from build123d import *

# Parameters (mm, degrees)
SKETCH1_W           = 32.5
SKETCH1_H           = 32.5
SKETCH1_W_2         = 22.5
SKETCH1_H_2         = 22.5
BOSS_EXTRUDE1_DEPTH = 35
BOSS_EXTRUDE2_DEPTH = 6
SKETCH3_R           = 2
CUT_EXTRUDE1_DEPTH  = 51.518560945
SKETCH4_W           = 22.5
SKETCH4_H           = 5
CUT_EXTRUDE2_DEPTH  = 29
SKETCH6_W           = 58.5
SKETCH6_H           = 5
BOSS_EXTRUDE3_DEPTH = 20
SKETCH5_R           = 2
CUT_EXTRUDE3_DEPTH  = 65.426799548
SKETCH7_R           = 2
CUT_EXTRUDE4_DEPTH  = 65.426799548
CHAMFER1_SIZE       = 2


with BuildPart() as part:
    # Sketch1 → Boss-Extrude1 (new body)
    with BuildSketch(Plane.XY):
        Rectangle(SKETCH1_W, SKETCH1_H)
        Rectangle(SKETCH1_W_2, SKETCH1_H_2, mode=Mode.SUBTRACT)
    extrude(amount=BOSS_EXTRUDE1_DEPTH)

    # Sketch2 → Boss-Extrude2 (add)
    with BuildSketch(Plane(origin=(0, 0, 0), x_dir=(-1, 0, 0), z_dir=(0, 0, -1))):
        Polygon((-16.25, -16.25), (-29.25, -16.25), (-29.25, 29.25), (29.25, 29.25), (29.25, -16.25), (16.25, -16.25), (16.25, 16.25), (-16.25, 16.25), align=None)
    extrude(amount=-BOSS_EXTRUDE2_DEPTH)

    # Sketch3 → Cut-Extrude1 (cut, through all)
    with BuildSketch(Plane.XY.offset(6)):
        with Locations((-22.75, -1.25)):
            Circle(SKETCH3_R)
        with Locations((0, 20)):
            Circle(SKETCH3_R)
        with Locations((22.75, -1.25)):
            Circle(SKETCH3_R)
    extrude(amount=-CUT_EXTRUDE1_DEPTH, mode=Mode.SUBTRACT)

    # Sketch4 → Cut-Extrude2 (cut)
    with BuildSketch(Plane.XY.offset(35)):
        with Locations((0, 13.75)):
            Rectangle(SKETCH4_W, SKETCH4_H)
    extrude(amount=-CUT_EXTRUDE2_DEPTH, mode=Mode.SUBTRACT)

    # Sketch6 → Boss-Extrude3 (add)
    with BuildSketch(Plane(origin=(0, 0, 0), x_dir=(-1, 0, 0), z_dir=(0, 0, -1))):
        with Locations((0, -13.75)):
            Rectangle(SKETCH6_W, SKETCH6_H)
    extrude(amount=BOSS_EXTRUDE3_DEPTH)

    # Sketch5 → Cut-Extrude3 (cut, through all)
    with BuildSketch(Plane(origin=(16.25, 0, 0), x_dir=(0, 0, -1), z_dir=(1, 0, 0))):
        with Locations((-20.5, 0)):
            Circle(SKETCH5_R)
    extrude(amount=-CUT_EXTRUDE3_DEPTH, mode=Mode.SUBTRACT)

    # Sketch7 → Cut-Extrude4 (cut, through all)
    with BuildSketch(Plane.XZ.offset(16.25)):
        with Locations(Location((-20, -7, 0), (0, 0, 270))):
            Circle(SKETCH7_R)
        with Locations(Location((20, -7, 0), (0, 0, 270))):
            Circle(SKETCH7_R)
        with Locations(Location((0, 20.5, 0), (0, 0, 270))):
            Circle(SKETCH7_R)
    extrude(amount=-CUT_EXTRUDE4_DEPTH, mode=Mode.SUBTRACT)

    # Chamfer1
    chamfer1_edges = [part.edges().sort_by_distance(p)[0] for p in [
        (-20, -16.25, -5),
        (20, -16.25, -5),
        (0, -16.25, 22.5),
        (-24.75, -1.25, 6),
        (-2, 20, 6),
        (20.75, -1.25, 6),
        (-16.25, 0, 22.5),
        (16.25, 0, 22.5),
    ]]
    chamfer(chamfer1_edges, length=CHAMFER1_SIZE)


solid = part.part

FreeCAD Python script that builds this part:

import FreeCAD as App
import Part
import Sketcher
from FreeCAD import Vector


def edges_at(feature, points):
    """Names of the edges that pass closest to the given points."""
    edges = feature.Shape.Edges
    near = lambda p: min(range(len(edges)), key=lambda i: edges[i].distToShape(Part.Vertex(*p))[0])
    return sorted({f"Edge{near(p) + 1}" for p in points})

doc = App.newDocument("Part")
body = doc.addObject("PartDesign::Body", "Body")

# Sketch on XY plane
sketch1 = body.newObject("Sketcher::SketchObject", "Sketch")
sketch1.AttachmentSupport = (doc.getObject("XY_Plane"), [""])
sketch1.MapMode = "FlatFace"
sketch1.addGeometry([
    Part.LineSegment(Vector(-16, 16, 0), Vector(-16, -16, 0)),  # 0
    Part.LineSegment(Vector(-16, -16, 0), Vector(16, -16, 0)),  # 1
    Part.LineSegment(Vector(16, -16, 0), Vector(16, 16, 0)),  # 2
    Part.LineSegment(Vector(16, 16, 0), Vector(-16, 16, 0)),  # 3
    Part.LineSegment(Vector(11, -11, 0), Vector(-11, -11, 0)),  # 4
    Part.LineSegment(Vector(-11, -11, 0), Vector(-11, 11, 0)),  # 5
    Part.LineSegment(Vector(-11, 11, 0), Vector(11, 11, 0)),  # 6
    Part.LineSegment(Vector(11, 11, 0), Vector(11, -11, 0)),  # 7
], False)
sketch1.addConstraint([
    Sketcher.Constraint("Coincident", 0, 2, 1, 1),
    Sketcher.Constraint("Coincident", 1, 2, 2, 1),
    Sketcher.Constraint("Coincident", 2, 2, 3, 1),
    Sketcher.Constraint("Coincident", 3, 2, 0, 1),
    Sketcher.Constraint("Coincident", 4, 2, 5, 1),
    Sketcher.Constraint("Coincident", 5, 2, 6, 1),
    Sketcher.Constraint("Coincident", 6, 2, 7, 1),
    Sketcher.Constraint("Coincident", 7, 2, 4, 1),
    Sketcher.Constraint("Vertical", 0),
    Sketcher.Constraint("Horizontal", 1),
    Sketcher.Constraint("Vertical", 2),
    Sketcher.Constraint("Horizontal", 3),
    Sketcher.Constraint("Horizontal", 4),
    Sketcher.Constraint("Vertical", 5),
    Sketcher.Constraint("Horizontal", 6),
    Sketcher.Constraint("Vertical", 7),
    Sketcher.Constraint("Symmetric", 0, 2, 2, 2, -1, 1),
    Sketcher.Constraint("Symmetric", 4, 2, 6, 2, -1, 1),
    Sketcher.Constraint("Equal", 3, 0),
    Sketcher.Constraint("Equal", 6, 5),
    Sketcher.Constraint("DistanceX", 1, 1, 1, 2, 32.5),
    Sketcher.Constraint("DistanceX", 4, 2, 4, 1, 22.5),
])
pad1 = body.newObject("PartDesign::Pad", "Pad")
pad1.Profile = sketch1
pad1.Length = 35

# Sketch on XY plane
sketch2 = body.newObject("Sketcher::SketchObject", "Sketch001")
sketch2.AttachmentSupport = (doc.getObject("XY_Plane"), [""])
sketch2.MapMode = "FlatFace"
sketch2.addGeometry([
    Part.LineSegment(Vector(29, -16, 0), Vector(16, -16, 0)),  # 0
    Part.LineSegment(Vector(16, -16, 0), Vector(16, 16, 0)),  # 1
    Part.LineSegment(Vector(16, 16, 0), Vector(-16, 16, 0)),  # 2
    Part.LineSegment(Vector(-16, 16, 0), Vector(-16, -16, 0)),  # 3
    Part.LineSegment(Vector(-16, -16, 0), Vector(-29, -16, 0)),  # 4
    Part.LineSegment(Vector(-29, -16, 0), Vector(-29, 29, 0)),  # 5
    Part.LineSegment(Vector(-29, 29, 0), Vector(29, 29, 0)),  # 6
    Part.LineSegment(Vector(29, 29, 0), Vector(29, -16, 0)),  # 7
], False)
sketch2.addConstraint([
    Sketcher.Constraint("Coincident", 0, 2, 1, 1),
    Sketcher.Constraint("Coincident", 1, 2, 2, 1),
    Sketcher.Constraint("Coincident", 2, 2, 3, 1),
    Sketcher.Constraint("Coincident", 3, 2, 4, 1),
    Sketcher.Constraint("Coincident", 4, 2, 5, 1),
    Sketcher.Constraint("Coincident", 5, 2, 6, 1),
    Sketcher.Constraint("Coincident", 6, 2, 7, 1),
    Sketcher.Constraint("Coincident", 7, 2, 0, 1),
    Sketcher.Constraint("Horizontal", 0),
    Sketcher.Constraint("Vertical", 1),
    Sketcher.Constraint("Horizontal", 2),
    Sketcher.Constraint("Vertical", 3),
    Sketcher.Constraint("Horizontal", 4),
    Sketcher.Constraint("Vertical", 5),
    Sketcher.Constraint("Horizontal", 6),
    Sketcher.Constraint("Vertical", 7),
    Sketcher.Constraint("Symmetric", 0, 2, 2, 2, -1, 1),
    Sketcher.Constraint("Symmetric", 4, 2, 7, 2, -2),
    Sketcher.Constraint("Equal", 2, 1),
    Sketcher.Constraint("DistanceX", 0, 2, 0, 1, 13.0),
    Sketcher.Constraint("DistanceX", 2, 2, 2, 1, 32.5),
    Sketcher.Constraint("DistanceY", 5, 1, 5, 2, 45.5),
])
pad2 = body.newObject("PartDesign::Pad", "Pad001")
pad2.Profile = sketch2
pad2.Length = 6

# Sketch on XY plane
sketch3 = body.newObject("Sketcher::SketchObject", "Sketch002")
sketch3.AttachmentSupport = (doc.getObject("XY_Plane"), [""])
sketch3.MapMode = "FlatFace"
sketch3.AttachmentOffset = App.Placement(Vector(0, 0, 6), App.Rotation())
sketch3.addGeometry([
    Part.Circle(Vector(-22.8, -1.2, 0), Vector(0, 0, 1), 2),
    Part.Circle(Vector(0, 20, 0), Vector(0, 0, 1), 2),
    Part.Circle(Vector(22.8, -1.2, 0), Vector(0, 0, 1), 2),
], False)
sketch3.addConstraint([
    Sketcher.Constraint("Equal", 0, 1),
    Sketcher.Constraint("Equal", 1, 2),
    Sketcher.Constraint("Symmetric", 0, 3, 2, 3, -2),
    Sketcher.Constraint("PointOnObject", 1, 3, -2),
    Sketcher.Constraint("Diameter", 0, 4.0),
    Sketcher.Constraint("DistanceY", -1, 1, 1, 3, 20.0),
    Sketcher.Constraint("DistanceX", 0, 3, 2, 3, 45.5),
    Sketcher.Constraint("DistanceY", 0, 3, -1, 1, 1.25),
])
pocket1 = body.newObject("PartDesign::Pocket", "Pocket")
pocket1.Profile = sketch3
pocket1.Type = "ThroughAll"

# Sketch on XY plane
sketch4 = body.newObject("Sketcher::SketchObject", "Sketch003")
sketch4.AttachmentSupport = (doc.getObject("XY_Plane"), [""])
sketch4.MapMode = "FlatFace"
sketch4.AttachmentOffset = App.Placement(Vector(0, 0, 35), App.Rotation())
sketch4.addGeometry([
    Part.LineSegment(Vector(-11, 16, 0), Vector(-11, 11, 0)),
    Part.LineSegment(Vector(-11, 11, 0), Vector(11, 11, 0)),
    Part.LineSegment(Vector(11, 11, 0), Vector(11, 16, 0)),
    Part.LineSegment(Vector(11, 16, 0), Vector(-11, 16, 0)),
], False)
sketch4.addConstraint([
    Sketcher.Constraint("Coincident", 0, 2, 1, 1),
    Sketcher.Constraint("Coincident", 1, 2, 2, 1),
    Sketcher.Constraint("Coincident", 2, 2, 3, 1),
    Sketcher.Constraint("Coincident", 3, 2, 0, 1),
    Sketcher.Constraint("Vertical", 0),
    Sketcher.Constraint("Horizontal", 1),
    Sketcher.Constraint("Vertical", 2),
    Sketcher.Constraint("Horizontal", 3),
    Sketcher.Constraint("DistanceY", 0, 2, 0, 1, 5.0),
    Sketcher.Constraint("DistanceX", 1, 1, 1, 2, 22.5),
    Sketcher.Constraint("DistanceX", 0, 2, -1, 1, 11.25),
    Sketcher.Constraint("DistanceY", -1, 1, 0, 2, 11.25),
])
pocket2 = body.newObject("PartDesign::Pocket", "Pocket001")
pocket2.Profile = sketch4
pocket2.Length = 29

# Sketch on XY plane
sketch5 = body.newObject("Sketcher::SketchObject", "Sketch004")
sketch5.AttachmentSupport = (doc.getObject("XY_Plane"), [""])
sketch5.MapMode = "FlatFace"
sketch5.addGeometry([
    Part.LineSegment(Vector(29, -11, 0), Vector(29, -16, 0)),
    Part.LineSegment(Vector(29, -16, 0), Vector(-29, -16, 0)),
    Part.LineSegment(Vector(-29, -16, 0), Vector(-29, -11, 0)),
    Part.LineSegment(Vector(-29, -11, 0), Vector(29, -11, 0)),
], False)
sketch5.addConstraint([
    Sketcher.Constraint("Coincident", 0, 2, 1, 1),
    Sketcher.Constraint("Coincident", 1, 2, 2, 1),
    Sketcher.Constraint("Coincident", 2, 2, 3, 1),
    Sketcher.Constraint("Coincident", 3, 2, 0, 1),
    Sketcher.Constraint("Vertical", 0),
    Sketcher.Constraint("Horizontal", 1),
    Sketcher.Constraint("Vertical", 2),
    Sketcher.Constraint("Horizontal", 3),
    Sketcher.Constraint("DistanceY", 0, 2, 0, 1, 5.0),
    Sketcher.Constraint("DistanceX", 1, 2, 1, 1, 58.5),
    Sketcher.Constraint("DistanceX", -1, 1, 0, 2, 29.25),
    Sketcher.Constraint("DistanceY", 0, 2, -1, 1, 16.25),
])
pad3 = body.newObject("PartDesign::Pad", "Pad002")
pad3.Profile = sketch5
pad3.Length = 20
pad3.Reversed = True

# Sketch on YZ plane
sketch6 = body.newObject("Sketcher::SketchObject", "Sketch005")
sketch6.AttachmentSupport = (doc.getObject("YZ_Plane"), [""])
sketch6.MapMode = "FlatFace"
sketch6.AttachmentOffset = App.Placement(Vector(0, 0, 16.25), App.Rotation())
sketch6.addGeometry(Part.Circle(Vector(0, 20.5, 0), Vector(0, 0, 1), 2), False)
sketch6.addConstraint([
    Sketcher.Constraint("PointOnObject", 0, 3, -2),
    Sketcher.Constraint("Diameter", 0, 4.0),
    Sketcher.Constraint("DistanceY", -1, 1, 0, 3, 20.5),
])
pocket3 = body.newObject("PartDesign::Pocket", "Pocket002")
pocket3.Profile = sketch6
pocket3.Type = "ThroughAll"

# Sketch on XZ plane
sketch7 = body.newObject("Sketcher::SketchObject", "Sketch006")
sketch7.AttachmentSupport = (doc.getObject("XZ_Plane"), [""])
sketch7.MapMode = "FlatFace"
sketch7.AttachmentOffset = App.Placement(Vector(0, 0, 16.25), App.Rotation())
sketch7.addGeometry([
    Part.Circle(Vector(-20, -7, 0), Vector(0, 0, 1), 2),
    Part.Circle(Vector(20, -7, 0), Vector(0, 0, 1), 2),
    Part.Circle(Vector(0, 20.5, 0), Vector(0, 0, 1), 2),
], False)
sketch7.addConstraint([
    Sketcher.Constraint("Equal", 0, 1),
    Sketcher.Constraint("Equal", 1, 2),
    Sketcher.Constraint("Symmetric", 0, 3, 1, 3, -2),
    Sketcher.Constraint("PointOnObject", 2, 3, -2),
    Sketcher.Constraint("Diameter", 0, 4.0),
    Sketcher.Constraint("DistanceX", 0, 3, -1, 1, 20.0),
    Sketcher.Constraint("DistanceY", 0, 3, -1, 1, 7.0),
    Sketcher.Constraint("DistanceY", -1, 1, 2, 3, 20.5),
])
pocket4 = body.newObject("PartDesign::Pocket", "Pocket003")
pocket4.Profile = sketch7
pocket4.Type = "ThroughAll"
doc.recompute()

chamfer = body.newObject("PartDesign::Chamfer", "Chamfer")
chamfer.Base = (pocket4, edges_at(pocket4, [
    (-20, -16.25, -5),
    (20, -16.25, -5),
    (0, -16.25, 22.5),
    (-24.75, -1.25, 6),
    (-2, 20, 6),
    (20.75, -1.25, 6),
    (-16.25, 0, 22.5),
    (16.25, 0, 22.5),
]))
chamfer.Size = 2

doc.recompute()
